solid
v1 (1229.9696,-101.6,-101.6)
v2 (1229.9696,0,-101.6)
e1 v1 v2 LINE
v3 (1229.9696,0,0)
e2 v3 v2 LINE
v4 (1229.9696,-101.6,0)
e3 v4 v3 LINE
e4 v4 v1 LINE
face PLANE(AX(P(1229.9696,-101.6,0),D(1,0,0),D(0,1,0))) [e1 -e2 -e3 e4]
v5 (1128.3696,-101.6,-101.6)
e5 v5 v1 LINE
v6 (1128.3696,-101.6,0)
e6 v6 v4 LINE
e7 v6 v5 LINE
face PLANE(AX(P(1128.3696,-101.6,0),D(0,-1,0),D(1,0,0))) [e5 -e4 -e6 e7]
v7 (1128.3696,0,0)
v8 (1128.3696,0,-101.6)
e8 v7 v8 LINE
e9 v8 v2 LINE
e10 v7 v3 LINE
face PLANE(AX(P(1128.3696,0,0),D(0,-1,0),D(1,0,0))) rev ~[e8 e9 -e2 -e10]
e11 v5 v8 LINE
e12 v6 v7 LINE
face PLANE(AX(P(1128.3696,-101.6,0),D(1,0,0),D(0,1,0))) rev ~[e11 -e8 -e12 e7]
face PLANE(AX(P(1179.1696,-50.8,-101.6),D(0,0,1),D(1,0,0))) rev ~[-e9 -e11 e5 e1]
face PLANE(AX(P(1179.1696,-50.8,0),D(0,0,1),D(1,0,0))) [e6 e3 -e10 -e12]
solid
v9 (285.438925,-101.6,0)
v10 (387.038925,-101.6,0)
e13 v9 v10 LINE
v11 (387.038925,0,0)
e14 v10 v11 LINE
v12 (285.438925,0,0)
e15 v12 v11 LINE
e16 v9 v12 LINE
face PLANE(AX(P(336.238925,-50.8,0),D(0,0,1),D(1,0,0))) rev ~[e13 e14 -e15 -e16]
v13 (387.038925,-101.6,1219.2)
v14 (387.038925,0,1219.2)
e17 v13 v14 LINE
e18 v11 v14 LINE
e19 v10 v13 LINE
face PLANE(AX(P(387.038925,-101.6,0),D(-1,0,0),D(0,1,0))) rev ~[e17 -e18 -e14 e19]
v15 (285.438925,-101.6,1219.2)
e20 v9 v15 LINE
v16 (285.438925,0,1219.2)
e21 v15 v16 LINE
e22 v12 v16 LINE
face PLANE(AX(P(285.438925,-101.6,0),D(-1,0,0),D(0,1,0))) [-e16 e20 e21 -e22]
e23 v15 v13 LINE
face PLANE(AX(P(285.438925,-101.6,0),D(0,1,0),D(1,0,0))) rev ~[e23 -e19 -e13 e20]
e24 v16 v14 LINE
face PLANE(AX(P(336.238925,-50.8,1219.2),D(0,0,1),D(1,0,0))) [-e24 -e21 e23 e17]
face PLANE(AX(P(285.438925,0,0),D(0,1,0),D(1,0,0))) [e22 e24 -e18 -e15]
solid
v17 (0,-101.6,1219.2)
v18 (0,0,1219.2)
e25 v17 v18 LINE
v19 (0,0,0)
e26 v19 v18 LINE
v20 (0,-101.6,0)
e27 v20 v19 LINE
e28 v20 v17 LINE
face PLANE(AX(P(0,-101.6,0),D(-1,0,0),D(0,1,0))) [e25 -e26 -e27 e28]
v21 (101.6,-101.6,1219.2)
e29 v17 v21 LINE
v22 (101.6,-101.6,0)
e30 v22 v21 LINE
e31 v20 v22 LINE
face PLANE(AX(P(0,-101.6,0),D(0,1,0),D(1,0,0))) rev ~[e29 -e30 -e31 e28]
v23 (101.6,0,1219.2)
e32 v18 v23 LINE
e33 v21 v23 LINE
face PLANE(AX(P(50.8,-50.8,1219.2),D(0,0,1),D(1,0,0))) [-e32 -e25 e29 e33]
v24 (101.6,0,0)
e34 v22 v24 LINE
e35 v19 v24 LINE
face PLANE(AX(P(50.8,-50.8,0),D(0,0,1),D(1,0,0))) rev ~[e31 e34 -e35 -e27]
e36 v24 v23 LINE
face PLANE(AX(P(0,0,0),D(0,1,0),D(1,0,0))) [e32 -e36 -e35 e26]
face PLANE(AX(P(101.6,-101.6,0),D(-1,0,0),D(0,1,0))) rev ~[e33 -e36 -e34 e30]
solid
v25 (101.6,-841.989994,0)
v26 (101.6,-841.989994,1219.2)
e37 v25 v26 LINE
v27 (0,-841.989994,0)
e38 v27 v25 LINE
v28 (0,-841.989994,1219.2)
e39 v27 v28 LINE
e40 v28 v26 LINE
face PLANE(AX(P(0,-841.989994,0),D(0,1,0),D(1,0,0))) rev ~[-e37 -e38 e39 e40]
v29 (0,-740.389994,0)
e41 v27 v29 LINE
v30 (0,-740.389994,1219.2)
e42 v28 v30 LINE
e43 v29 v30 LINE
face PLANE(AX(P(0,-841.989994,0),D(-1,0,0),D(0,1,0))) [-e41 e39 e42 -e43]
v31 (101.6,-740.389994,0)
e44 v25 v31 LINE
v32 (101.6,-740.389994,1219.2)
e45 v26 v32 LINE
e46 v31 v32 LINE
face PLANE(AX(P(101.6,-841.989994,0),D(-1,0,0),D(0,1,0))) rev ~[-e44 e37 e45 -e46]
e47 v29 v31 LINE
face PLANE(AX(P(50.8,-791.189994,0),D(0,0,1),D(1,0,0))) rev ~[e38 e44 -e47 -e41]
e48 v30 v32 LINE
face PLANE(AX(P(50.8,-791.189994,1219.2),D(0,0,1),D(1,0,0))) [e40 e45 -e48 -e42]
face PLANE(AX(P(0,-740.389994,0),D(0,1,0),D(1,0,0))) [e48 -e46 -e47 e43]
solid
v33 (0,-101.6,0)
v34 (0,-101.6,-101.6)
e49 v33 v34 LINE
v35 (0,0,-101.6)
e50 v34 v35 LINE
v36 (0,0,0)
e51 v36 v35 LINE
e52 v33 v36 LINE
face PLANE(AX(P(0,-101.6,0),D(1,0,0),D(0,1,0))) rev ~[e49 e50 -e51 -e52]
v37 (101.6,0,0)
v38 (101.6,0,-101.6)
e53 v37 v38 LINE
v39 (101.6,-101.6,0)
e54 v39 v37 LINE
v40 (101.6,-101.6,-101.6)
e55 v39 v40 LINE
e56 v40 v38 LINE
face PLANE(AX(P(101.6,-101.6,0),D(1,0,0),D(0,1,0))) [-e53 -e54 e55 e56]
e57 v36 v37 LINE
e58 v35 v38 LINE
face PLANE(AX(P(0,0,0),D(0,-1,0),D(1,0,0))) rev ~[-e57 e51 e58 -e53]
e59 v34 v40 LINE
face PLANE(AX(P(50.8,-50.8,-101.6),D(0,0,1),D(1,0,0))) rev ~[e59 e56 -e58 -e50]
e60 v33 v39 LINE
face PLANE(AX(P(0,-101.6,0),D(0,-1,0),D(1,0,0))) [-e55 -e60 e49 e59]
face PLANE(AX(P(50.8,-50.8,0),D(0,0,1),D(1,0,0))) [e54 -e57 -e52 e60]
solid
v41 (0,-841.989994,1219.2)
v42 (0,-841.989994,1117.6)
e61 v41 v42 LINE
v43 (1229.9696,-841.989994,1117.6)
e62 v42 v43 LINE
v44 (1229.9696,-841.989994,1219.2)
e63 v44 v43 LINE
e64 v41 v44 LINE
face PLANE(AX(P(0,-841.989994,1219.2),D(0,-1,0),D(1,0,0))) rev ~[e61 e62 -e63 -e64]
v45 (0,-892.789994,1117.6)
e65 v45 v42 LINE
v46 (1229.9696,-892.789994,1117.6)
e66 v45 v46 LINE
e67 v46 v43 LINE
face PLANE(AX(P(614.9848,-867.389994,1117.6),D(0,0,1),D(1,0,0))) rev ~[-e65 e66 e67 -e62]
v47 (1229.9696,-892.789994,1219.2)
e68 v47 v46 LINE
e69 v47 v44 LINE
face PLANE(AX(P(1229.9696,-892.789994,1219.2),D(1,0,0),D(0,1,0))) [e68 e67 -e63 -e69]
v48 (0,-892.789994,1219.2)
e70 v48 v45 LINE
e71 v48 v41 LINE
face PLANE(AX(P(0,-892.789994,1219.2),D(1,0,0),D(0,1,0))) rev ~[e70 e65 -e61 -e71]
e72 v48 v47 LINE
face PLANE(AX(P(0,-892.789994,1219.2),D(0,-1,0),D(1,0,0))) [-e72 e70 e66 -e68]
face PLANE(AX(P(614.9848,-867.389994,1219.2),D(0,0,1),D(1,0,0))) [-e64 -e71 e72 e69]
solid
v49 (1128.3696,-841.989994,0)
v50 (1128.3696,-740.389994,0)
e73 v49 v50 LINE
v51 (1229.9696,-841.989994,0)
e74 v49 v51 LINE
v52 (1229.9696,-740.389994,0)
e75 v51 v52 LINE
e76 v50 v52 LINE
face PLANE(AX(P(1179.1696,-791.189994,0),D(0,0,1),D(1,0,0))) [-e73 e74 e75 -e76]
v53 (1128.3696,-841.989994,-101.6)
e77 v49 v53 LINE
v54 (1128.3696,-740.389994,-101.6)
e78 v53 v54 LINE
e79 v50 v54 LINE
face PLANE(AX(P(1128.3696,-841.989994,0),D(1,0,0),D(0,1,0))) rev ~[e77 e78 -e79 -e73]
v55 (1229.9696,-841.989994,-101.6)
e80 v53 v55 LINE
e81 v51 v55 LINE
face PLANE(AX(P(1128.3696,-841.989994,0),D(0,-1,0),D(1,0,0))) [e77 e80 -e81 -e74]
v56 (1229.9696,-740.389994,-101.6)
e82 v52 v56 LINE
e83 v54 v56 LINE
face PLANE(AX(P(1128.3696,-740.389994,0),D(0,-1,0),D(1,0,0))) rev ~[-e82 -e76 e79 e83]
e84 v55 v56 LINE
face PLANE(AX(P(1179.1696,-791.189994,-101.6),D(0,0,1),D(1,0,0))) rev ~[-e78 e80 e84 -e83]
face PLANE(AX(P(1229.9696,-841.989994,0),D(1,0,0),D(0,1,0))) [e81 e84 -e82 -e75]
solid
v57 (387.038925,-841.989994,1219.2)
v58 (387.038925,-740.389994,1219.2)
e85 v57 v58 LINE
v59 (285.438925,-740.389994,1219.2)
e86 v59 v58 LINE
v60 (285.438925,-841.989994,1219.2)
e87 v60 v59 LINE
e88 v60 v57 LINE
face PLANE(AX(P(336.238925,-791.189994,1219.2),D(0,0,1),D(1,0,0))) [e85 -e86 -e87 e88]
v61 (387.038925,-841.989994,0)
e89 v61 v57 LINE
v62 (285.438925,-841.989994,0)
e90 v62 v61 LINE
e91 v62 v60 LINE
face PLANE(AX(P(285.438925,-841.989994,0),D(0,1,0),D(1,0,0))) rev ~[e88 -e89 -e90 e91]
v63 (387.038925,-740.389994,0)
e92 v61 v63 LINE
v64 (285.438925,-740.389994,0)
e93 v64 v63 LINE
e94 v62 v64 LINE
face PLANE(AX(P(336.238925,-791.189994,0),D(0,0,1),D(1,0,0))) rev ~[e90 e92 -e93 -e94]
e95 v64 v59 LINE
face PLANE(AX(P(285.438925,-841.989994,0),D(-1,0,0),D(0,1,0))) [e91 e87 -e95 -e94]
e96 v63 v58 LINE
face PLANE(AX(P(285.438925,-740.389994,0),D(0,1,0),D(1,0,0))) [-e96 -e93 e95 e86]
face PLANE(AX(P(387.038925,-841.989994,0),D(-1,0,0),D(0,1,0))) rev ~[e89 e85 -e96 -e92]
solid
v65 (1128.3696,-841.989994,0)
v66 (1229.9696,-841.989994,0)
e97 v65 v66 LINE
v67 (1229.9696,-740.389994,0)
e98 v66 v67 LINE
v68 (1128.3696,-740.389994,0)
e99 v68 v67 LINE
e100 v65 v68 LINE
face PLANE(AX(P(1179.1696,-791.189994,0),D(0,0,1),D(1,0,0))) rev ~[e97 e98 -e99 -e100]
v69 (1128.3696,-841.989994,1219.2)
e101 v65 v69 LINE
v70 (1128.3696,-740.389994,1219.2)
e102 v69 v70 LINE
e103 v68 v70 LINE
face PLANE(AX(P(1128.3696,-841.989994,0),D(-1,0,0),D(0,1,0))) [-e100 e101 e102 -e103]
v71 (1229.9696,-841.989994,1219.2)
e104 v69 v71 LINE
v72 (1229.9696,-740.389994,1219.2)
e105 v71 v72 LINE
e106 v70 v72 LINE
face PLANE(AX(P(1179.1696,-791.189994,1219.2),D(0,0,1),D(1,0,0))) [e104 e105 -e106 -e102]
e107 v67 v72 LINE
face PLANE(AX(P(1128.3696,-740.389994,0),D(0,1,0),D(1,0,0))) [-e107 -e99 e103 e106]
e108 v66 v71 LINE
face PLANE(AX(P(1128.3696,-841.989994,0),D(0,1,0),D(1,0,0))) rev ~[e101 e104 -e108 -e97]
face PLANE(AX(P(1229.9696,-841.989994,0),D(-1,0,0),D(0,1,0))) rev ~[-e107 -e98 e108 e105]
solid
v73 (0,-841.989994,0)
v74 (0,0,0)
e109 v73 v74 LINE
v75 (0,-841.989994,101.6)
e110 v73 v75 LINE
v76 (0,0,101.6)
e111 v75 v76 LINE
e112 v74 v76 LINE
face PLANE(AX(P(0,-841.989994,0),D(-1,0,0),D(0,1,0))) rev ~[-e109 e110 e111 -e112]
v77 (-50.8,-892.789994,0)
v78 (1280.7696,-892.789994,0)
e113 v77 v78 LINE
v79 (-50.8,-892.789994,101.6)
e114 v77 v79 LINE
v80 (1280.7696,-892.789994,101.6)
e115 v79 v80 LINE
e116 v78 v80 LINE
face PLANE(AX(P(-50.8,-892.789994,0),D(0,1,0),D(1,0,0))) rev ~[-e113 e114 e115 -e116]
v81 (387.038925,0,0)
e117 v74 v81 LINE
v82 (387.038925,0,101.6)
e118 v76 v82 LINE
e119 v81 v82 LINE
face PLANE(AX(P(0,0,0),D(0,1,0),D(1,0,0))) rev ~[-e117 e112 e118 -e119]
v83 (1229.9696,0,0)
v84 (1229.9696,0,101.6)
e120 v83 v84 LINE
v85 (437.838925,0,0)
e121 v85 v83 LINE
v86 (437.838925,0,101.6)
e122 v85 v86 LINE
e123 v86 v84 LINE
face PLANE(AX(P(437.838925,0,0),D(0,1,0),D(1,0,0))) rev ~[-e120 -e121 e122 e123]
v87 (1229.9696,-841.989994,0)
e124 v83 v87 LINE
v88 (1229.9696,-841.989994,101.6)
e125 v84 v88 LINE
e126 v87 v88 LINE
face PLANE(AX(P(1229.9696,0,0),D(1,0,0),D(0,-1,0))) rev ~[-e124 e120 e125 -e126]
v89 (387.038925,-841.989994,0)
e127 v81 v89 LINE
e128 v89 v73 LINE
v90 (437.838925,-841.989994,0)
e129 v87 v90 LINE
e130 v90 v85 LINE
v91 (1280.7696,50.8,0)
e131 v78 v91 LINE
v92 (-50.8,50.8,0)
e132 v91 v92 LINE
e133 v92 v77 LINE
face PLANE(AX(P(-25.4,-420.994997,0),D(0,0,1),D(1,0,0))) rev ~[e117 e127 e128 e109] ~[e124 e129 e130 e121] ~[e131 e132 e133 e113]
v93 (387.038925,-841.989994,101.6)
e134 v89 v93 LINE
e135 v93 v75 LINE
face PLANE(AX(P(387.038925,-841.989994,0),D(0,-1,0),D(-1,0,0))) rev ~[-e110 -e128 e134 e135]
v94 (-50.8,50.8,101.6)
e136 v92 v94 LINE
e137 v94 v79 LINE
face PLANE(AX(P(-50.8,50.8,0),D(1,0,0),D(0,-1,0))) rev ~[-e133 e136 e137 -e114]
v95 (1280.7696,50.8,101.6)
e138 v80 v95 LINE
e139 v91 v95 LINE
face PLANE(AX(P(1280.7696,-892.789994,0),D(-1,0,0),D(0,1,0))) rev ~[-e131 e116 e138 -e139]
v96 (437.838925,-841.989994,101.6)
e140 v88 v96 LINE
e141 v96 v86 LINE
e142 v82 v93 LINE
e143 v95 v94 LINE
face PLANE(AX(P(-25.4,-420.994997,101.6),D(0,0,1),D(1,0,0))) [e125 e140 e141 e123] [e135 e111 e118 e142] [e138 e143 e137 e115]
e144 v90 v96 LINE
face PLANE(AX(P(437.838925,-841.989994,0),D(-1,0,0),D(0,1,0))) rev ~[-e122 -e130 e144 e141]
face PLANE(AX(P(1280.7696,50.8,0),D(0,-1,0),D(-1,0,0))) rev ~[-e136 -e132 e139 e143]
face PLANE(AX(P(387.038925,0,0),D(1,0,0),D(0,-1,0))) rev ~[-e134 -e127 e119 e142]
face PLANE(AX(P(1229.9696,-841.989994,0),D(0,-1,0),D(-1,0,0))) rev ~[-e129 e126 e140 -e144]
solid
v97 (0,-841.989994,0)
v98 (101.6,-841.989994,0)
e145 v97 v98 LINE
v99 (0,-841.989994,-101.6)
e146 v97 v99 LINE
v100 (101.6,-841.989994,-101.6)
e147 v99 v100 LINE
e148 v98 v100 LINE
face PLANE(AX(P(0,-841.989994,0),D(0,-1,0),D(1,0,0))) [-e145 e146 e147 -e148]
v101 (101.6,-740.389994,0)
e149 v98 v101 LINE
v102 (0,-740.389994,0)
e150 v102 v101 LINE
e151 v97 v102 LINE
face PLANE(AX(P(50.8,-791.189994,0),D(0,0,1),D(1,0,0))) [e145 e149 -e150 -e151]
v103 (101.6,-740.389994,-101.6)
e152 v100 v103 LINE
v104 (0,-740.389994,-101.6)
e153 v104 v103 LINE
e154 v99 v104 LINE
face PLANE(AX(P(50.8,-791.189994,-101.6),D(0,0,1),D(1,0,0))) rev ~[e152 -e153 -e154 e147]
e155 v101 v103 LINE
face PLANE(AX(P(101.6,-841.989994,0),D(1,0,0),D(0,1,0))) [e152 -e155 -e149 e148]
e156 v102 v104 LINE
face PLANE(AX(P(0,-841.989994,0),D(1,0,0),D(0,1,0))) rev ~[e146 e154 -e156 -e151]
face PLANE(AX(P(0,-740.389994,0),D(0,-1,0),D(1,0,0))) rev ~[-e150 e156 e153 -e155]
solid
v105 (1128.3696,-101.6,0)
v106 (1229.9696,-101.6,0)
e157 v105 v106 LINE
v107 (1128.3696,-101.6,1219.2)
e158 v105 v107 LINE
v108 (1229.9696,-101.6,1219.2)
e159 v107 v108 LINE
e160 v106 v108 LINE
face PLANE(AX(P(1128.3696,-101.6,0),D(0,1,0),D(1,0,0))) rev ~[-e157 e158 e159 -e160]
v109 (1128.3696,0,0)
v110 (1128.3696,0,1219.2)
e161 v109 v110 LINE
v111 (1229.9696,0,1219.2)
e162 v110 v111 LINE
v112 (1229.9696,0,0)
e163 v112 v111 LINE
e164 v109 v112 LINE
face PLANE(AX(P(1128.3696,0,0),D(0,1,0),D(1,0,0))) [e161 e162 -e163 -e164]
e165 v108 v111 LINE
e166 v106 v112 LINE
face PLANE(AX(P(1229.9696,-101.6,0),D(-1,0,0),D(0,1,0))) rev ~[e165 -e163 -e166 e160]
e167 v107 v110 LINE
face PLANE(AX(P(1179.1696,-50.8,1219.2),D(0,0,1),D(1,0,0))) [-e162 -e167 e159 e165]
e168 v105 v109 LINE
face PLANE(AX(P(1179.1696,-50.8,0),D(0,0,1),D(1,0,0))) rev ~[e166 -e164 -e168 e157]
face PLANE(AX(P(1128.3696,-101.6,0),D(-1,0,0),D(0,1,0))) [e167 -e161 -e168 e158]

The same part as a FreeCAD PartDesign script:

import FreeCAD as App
import Part
import Sketcher
Q = App.Units.Quantity


def add_polygon(sketch, points):
    """Adds a closed chain of lines whose ends are joined by coincident constraints."""
    first, n = sketch.GeometryCount, len(points)
    for a, b in zip(points, points[1:] + points[:1]):
        sketch.addGeometry(Part.LineSegment(App.Vector(*a, 0), App.Vector(*b, 0)), False)
    for i in range(n):
        sketch.addConstraint(Sketcher.Constraint("Coincident", first + i, 2, first + (i + 1) % n, 1))

doc = App.newDocument("Part")
params = doc.addObject("Spreadsheet::Sheet", "Params")
for row, (alias, value) in enumerate([
    ("sketch1_width", "4 in"),
    ("pad1_length", "48 in"),
    ("sketch2_width", "52.424 in"),
    ("pad2_length", "4 in"),
    ("sketch3_width", "4 in"),
    ("pad3_length", "4 in"),
    ("sketch4_height", "2 in"),
    ("sketch4_width", "48.424 in"),
    ("pad4_length", "4 in"),
], start=1):
    params.set(f"A{row}", alias)
    params.set(f"B{row}", "=" + value)
    params.setAlias(f"B{row}", alias)

body = doc.addObject("PartDesign::Body", "Body")
body.AllowCompound = True

# Sketch on XY plane
sketch1 = body.newObject("Sketcher::SketchObject", "Sketch")
sketch1.AttachmentSupport = (doc.getObject("XY_Plane"), [""])
sketch1.MapMode = "FlatFace"
add_polygon(sketch1, [(0, -740), (0, -842), (102, -842), (102, -740)])  # lines 0-3
add_polygon(sketch1, [(0, 0), (0, -102), (102, -102), (102, 0)])  # lines 4-7
add_polygon(sketch1, [(285, -740), (285, -842), (387, -842), (387, -740)])  # lines 8-11
add_polygon(sketch1, [(285, 0), (285, -102), (387, -102), (387, 0)])  # lines 12-15
add_polygon(sketch1, [(1128, 0), (1128, -102), (1230, -102), (1230, 0)])  # lines 16-19
add_polygon(sketch1, [(1128, -740), (1128, -842), (1230, -842), (1230, -740)])  # lines 20-23
sketch1.addConstraint([
    Sketcher.Constraint("Vertical", 0),
    Sketcher.Constraint("Horizontal", 1),
    Sketcher.Constraint("Vertical", 2),
    Sketcher.Constraint("Horizontal", 3),
    Sketcher.Constraint("Vertical", 4),
    Sketcher.Constraint("Horizontal", 5),
    Sketcher.Constraint("Vertical", 6),
    Sketcher.Constraint("Horizontal", 7),
    Sketcher.Constraint("Vertical", 8),
    Sketcher.Constraint("Horizontal", 9),
    Sketcher.Constraint("Vertical", 10),
    Sketcher.Constraint("Horizontal", 11),
    Sketcher.Constraint("Vertical", 12),
    Sketcher.Constraint("Horizontal", 13),
    Sketcher.Constraint("Vertical", 14),
    Sketcher.Constraint("Horizontal", 15),
    Sketcher.Constraint("Vertical", 16),
    Sketcher.Constraint("Horizontal", 17),
    Sketcher.Constraint("Vertical", 18),
    Sketcher.Constraint("Horizontal", 19),
    Sketcher.Constraint("Vertical", 20),
    Sketcher.Constraint("Horizontal", 21),
    Sketcher.Constraint("Vertical", 22),
    Sketcher.Constraint("Horizontal", 23),
    Sketcher.Constraint("Coincident", 7, 2, -1, 1),
    Sketcher.Constraint("PointOnObject", 0, 2, -2),
    Sketcher.Constraint("PointOnObject", 14, 2, -1),
    Sketcher.Constraint("PointOnObject", 18, 2, -1),
    Sketcher.Constraint("Horizontal", 1, 2, 8, 2),
    Sketcher.Constraint("Horizontal", 3, 2, 10, 2),
    Sketcher.Constraint("Horizontal", 5, 2, 12, 2),
    Sketcher.Constraint("Horizontal", 13, 2, 16, 2),
    Sketcher.Constraint("Horizontal", 9, 2, 20, 2),
    Sketcher.Constraint("Horizontal", 11, 2, 22, 2),
    Sketcher.Constraint("Vertical", 2, 2, 5, 2),
    Sketcher.Constraint("Vertical", 11, 2, 12, 2),
    Sketcher.Constraint("Vertical", 10, 2, 13, 2),
    Sketcher.Constraint("Vertical", 19, 2, 20, 2),
    Sketcher.Constraint("Vertical", 18, 2, 21, 2),
    Sketcher.Constraint("Equal", 7, 9),
    Sketcher.Constraint("Equal", 15, 17),
    Sketcher.Constraint("Equal", 23, 0),
    Sketcher.Constraint("Equal", 2, 4),
    Sketcher.Constraint("DistanceX", 1, 1, 1, 2, Q("4 in")),
    Sketcher.Constraint("DistanceX", -1, 1, 16, 2, Q("44.424 in")),
    Sketcher.Constraint("DistanceY", 0, 2, -1, 1, Q("841.989994 mm")),
    Sketcher.Constraint("DistanceX", -1, 1, 8, 2, Q("285.438925 mm")),
])
sketch1.setExpression("Constraints[67]", "Params.sketch1_width")
pad1 = body.newObject("PartDesign::Pad", "Pad")
pad1.Profile = sketch1
pad1.setExpression("Length", "Params.pad1_length")
body2 = doc.addObject("PartDesign::Body", "Body001")

# Sketch on XY plane
sketch2 = body2.newObject("Sketcher::SketchObject", "Sketch001")
sketch2.AttachmentSupport = (doc.getObject("XY_Plane001"), [""])
sketch2.MapMode = "FlatFace"
add_polygon(sketch2, [(-51, 51), (-51, -893), (1281, -893), (1281, 51)])  # lines 0-3
add_polygon(sketch2, [(1230, 0), (1230, -842), (438, -842), (438, 0)])  # lines 4-7
add_polygon(sketch2, [(387, -842), (0, -842), (0, 0), (387, 0)])  # lines 8-11
sketch2.addConstraint([
    Sketcher.Constraint("Vertical", 0),
    Sketcher.Constraint("Horizontal", 1),
    Sketcher.Constraint("Vertical", 2),
    Sketcher.Constraint("Horizontal", 3),
    Sketcher.Constraint("Vertical", 4),
    Sketcher.Constraint("Horizontal", 5),
    Sketcher.Constraint("Vertical", 6),
    Sketcher.Constraint("Horizontal", 7),
    Sketcher.Constraint("Horizontal", 8),
    Sketcher.Constraint("Vertical", 9),
    Sketcher.Constraint("Horizontal", 10),
    Sketcher.Constraint("Vertical", 11),
    Sketcher.Constraint("Coincident", 9, 2, -1, 1),
    Sketcher.Constraint("PointOnObject", 6, 2, -1),
    Sketcher.Constraint("Horizontal", 5, 2, 8, 2),
    Sketcher.Constraint("DistanceX", 0, 2, -1, 1, Q("2 in")),
    Sketcher.Constraint("DistanceY", -1, 1, 2, 2, Q("2 in")),
    Sketcher.Constraint("DistanceX", 4, 2, 1, 2, Q("2 in")),
    Sketcher.Constraint("DistanceY", 1, 2, 4, 2, Q("2 in")),
    Sketcher.Constraint("DistanceX", 10, 2, 6, 2, Q("2 in")),
    Sketcher.Constraint("DistanceX", 1, 1, 1, 2, Q("52.424 in")),
    Sketcher.Constraint("DistanceX", 5, 2, 5, 1, Q("792.130675 mm")),
    Sketcher.Constraint("DistanceY", 0, 2, 0, 1, Q("943.589994 mm")),
])
sketch2.setExpression("Constraints[32]", "Params.sketch2_width")
pad2 = body2.newObject("PartDesign::Pad", "Pad001")
pad2.Profile = sketch2
pad2.setExpression("Length", "Params.pad2_length")
body3 = doc.addObject("PartDesign::Body", "Body002")
body3.AllowCompound = True

# Sketch on XY plane
sketch3 = body3.newObject("Sketcher::SketchObject", "Sketch002")
sketch3.AttachmentSupport = (doc.getObject("XY_Plane002"), [""])
sketch3.MapMode = "FlatFace"
add_polygon(sketch3, [(0, -740), (0, -842), (102, -842), (102, -740)])  # lines 0-3
add_polygon(sketch3, [(0, 0), (0, -102), (102, -102), (102, 0)])  # lines 4-7
add_polygon(sketch3, [(1128, 0), (1128, -102), (1230, -102), (1230, 0)])  # lines 8-11
add_polygon(sketch3, [(1128, -740), (1128, -842), (1230, -842), (1230, -740)])  # lines 12-15
sketch3.addConstraint([
    Sketcher.Constraint("Vertical", 0),
    Sketcher.Constraint("Horizontal", 1),
    Sketcher.Constraint("Vertical", 2),
    Sketcher.Constraint("Horizontal", 3),
    Sketcher.Constraint("Vertical", 4),
    Sketcher.Constraint("Horizontal", 5),
    Sketcher.Constraint("Vertical", 6),
    Sketcher.Constraint("Horizontal", 7),
    Sketcher.Constraint("Vertical", 8),
    Sketcher.Constraint("Horizontal", 9),
    Sketcher.Constraint("Vertical", 10),
    Sketcher.Constraint("Horizontal", 11),
    Sketcher.Constraint("Vertical", 12),
    Sketcher.Constraint("Horizontal", 13),
    Sketcher.Constraint("Vertical", 14),
    Sketcher.Constraint("Horizontal", 15),
    Sketcher.Constraint("Coincident", 7, 2, -1, 1),
    Sketcher.Constraint("PointOnObject", 0, 2, -2),
    Sketcher.Constraint("PointOnObject", 10, 2, -1),
    Sketcher.Constraint("Horizontal", 5, 2, 8, 2),
    Sketcher.Constraint("Horizontal", 1, 2, 12, 2),
    Sketcher.Constraint("Horizontal", 3, 2, 14, 2),
    Sketcher.Constraint("Vertical", 2, 2, 5, 2),
    Sketcher.Constraint("Vertical", 11, 2, 12, 2),
    Sketcher.Constraint("Vertical", 10, 2, 13, 2),
    Sketcher.Constraint("Equal", 7, 9),
    Sketcher.Constraint("Equal", 15, 0),
    Sketcher.Constraint("Equal", 2, 4),
    Sketcher.Constraint("DistanceX", 1, 1, 1, 2, Q("4 in")),
    Sketcher.Constraint("DistanceX", -1, 1, 8, 2, Q("44.424 in")),
    Sketcher.Constraint("DistanceY", 0, 2, -1, 1, Q("841.989994 mm")),
])
sketch3.setExpression("Constraints[44]", "Params.sketch3_width")
pad3 = body3.newObject("PartDesign::Pad", "Pad002")
pad3.Profile = sketch3
pad3.setExpression("Length", "Params.pad3_length")
pad3.Reversed = True
body4 = doc.addObject("PartDesign::Body", "Body003")

# Sketch on XY plane
sketch4 = body4.newObject("Sketcher::SketchObject", "Sketch003")
sketch4.AttachmentSupport = (doc.getObject("XY_Plane003"), [""])
sketch4.MapMode = "FlatFace"
sketch4.AttachmentOffset = App.Placement(App.Vector(0, 0, 48 * 25.4), App.Rotation())
add_polygon(sketch4, [(0, -842), (0, -893), (1230, -893), (1230, -842)])  # lines 0-3
sketch4.addConstraint([
    Sketcher.Constraint("Vertical", 0),
    Sketcher.Constraint("Horizontal", 1),
    Sketcher.Constraint("Vertical", 2),
    Sketcher.Constraint("Horizontal", 3),
    Sketcher.Constraint("PointOnObject", 0, 2, -2),
    Sketcher.Constraint("DistanceY", 0, 2, 0, 1, Q("2 in")),
    Sketcher.Constraint("DistanceX", 1, 1, 1, 2, Q("48.424 in")),
    Sketcher.Constraint("DistanceY", 0, 2, -1, 1, Q("892.789994 mm")),
])
sketch4.setExpression("Constraints[9]", "Params.sketch4_height")
sketch4.setExpression("Constraints[10]", "Params.sketch4_width")
pad4 = body4.newObject("PartDesign::Pad", "Pad003")
pad4.Profile = sketch4
pad4.setExpression("Length", "Params.pad4_length")
pad4.Reversed = True

doc.recompute()
